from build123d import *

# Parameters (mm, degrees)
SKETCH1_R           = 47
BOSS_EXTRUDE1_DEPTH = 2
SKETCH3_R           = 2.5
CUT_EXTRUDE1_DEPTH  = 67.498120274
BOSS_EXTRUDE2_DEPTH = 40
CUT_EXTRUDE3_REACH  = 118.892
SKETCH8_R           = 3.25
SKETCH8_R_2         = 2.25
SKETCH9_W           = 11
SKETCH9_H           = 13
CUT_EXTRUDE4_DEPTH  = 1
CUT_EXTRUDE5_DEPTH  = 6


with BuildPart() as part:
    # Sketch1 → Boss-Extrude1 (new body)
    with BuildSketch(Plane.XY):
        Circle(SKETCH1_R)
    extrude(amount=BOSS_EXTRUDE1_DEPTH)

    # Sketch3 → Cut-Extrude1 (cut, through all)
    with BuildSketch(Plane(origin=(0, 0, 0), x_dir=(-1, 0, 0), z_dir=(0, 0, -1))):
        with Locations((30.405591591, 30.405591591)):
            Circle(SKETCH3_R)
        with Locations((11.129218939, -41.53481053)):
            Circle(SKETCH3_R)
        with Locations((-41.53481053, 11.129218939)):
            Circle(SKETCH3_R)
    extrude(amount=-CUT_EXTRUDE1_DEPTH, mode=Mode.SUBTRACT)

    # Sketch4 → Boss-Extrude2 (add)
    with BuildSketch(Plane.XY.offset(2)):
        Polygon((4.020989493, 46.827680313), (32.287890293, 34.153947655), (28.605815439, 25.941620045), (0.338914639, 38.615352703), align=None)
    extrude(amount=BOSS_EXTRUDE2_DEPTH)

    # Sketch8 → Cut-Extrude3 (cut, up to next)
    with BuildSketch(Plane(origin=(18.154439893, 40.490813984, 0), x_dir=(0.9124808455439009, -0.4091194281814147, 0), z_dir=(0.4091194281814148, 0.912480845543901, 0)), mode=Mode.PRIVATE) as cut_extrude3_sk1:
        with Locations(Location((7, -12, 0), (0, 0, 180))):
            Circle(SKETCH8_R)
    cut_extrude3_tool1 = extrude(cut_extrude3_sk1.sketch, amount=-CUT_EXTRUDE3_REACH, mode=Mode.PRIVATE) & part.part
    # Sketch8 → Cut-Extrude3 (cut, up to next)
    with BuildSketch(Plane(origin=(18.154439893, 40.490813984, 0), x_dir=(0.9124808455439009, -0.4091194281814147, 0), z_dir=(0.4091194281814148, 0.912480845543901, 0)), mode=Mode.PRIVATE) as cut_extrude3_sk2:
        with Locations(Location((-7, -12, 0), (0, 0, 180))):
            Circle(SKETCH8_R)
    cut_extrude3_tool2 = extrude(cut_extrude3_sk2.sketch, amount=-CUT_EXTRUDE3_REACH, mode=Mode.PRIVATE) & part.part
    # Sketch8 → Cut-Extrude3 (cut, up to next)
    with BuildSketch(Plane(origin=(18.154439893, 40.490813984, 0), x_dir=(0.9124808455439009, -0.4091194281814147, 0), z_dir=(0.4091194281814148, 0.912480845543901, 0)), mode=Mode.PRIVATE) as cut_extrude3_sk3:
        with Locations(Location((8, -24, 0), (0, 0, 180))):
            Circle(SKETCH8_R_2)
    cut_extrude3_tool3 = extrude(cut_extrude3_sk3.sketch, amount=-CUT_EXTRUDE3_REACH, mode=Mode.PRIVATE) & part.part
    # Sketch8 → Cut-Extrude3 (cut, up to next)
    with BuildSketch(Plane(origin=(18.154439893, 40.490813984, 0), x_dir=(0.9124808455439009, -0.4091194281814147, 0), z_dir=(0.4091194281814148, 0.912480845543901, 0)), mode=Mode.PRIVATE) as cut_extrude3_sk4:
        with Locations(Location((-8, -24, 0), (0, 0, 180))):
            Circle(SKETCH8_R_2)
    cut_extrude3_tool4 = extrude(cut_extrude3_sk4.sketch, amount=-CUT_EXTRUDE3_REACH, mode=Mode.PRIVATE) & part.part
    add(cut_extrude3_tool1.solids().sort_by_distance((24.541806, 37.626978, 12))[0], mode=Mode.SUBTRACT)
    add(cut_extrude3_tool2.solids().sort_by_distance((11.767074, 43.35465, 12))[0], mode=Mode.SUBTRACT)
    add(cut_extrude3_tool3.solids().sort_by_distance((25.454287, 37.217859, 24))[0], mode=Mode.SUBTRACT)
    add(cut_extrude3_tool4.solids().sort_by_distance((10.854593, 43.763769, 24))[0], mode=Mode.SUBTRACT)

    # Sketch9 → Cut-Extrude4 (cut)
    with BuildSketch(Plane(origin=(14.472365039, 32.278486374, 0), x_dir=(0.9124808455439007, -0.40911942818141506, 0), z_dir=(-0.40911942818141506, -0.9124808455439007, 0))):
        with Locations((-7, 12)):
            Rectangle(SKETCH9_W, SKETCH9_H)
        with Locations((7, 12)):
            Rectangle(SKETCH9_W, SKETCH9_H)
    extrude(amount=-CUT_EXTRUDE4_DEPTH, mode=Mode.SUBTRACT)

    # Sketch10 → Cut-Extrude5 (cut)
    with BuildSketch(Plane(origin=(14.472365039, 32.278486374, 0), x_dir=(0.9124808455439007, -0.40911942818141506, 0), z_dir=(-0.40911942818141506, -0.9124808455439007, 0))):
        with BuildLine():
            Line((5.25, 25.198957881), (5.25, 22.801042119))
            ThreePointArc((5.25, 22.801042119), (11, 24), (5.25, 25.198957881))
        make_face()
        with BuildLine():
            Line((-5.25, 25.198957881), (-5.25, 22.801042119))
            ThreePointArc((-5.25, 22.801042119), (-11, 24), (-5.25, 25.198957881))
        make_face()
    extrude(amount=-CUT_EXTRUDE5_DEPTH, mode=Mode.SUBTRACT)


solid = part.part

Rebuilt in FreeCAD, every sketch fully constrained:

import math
import FreeCAD as App
import Part
import Sketcher
Q = App.Units.Quantity

doc = App.newDocument("Part")
body = doc.addObject("PartDesign::Body", "Body")

sketch1 = body.newObject("Sketcher::SketchObject", "Sketch")
sketch1.AttachmentSupport = (doc.getObject("XY_Plane"), [""])
sketch1.MapMode = "FlatFace"
sketch1.addGeometry(Part.Circle(App.Vector(0, 0, 0), App.Vector(0, 0, 1), 47), False)
sketch1.addConstraint(Sketcher.Constraint("Coincident", 0, 3, -1, 1))
sketch1.addConstraint(Sketcher.Constraint("Diameter", 0, Q("94 mm")))
pad1 = body.newObject("PartDesign::Pad", "Pad")
pad1.Profile = sketch1
pad1.Length = 2

sketch2 = body.newObject("Sketcher::SketchObject", "Sketch001")
sketch2.AttachmentSupport = (doc.getObject("XY_Plane"), [""])
sketch2.MapMode = "FlatFace"
sketch2.addGeometry(Part.Circle(App.Vector(-30.4, 30.4, 0), App.Vector(0, 0, 1), 2.5), False)
sketch2.addGeometry(Part.Circle(App.Vector(-11.1, -41.5, 0), App.Vector(0, 0, 1), 2.5), False)
sketch2.addGeometry(Part.Circle(App.Vector(41.5, 11.1, 0), App.Vector(0, 0, 1), 2.5), False)
sketch2.addConstraint(Sketcher.Constraint("Equal", 0, 1))
sketch2.addConstraint(Sketcher.Constraint("Equal", 1, 2))
sketch2.addConstraint(Sketcher.Constraint("Diameter", 0, Q("5 mm")))
sketch2.addConstraint(Sketcher.Constraint("DistanceX", 0, 3, -1, 1, Q("30.405592 mm")))
sketch2.addConstraint(Sketcher.Constraint("DistanceY", -1, 1, 0, 3, Q("30.405592 mm")))
sketch2.addConstraint(Sketcher.Constraint("DistanceX", 1, 3, -1, 1, Q("11.129219 mm")))
sketch2.addConstraint(Sketcher.Constraint("DistanceY", 1, 3, -1, 1, Q("41.534811 mm")))
sketch2.addConstraint(Sketcher.Constraint("DistanceX", -1, 1, 2, 3, Q("41.534811 mm")))
sketch2.addConstraint(Sketcher.Constraint("DistanceY", -1, 1, 2, 3, Q("11.129219 mm")))
pocket1 = body.newObject("PartDesign::Pocket", "Pocket")
pocket1.Profile = sketch2
pocket1.Type = "ThroughAll"
pocket1.Reversed = True

sketch3 = body.newObject("Sketcher::SketchObject", "Sketch002")
sketch3.AttachmentSupport = (doc.getObject("XY_Plane"), [""])
sketch3.MapMode = "FlatFace"
sketch3.AttachmentOffset = App.Placement(App.Vector(0, 0, 2), App.Rotation())
sketch3.addGeometry(Part.LineSegment(App.Vector(32, 34, 0), App.Vector(4, 47, 0)), False)
sketch3.addGeometry(Part.LineSegment(App.Vector(4, 47, 0), App.Vector(0, 39, 0)), False)
sketch3.addGeometry(Part.LineSegment(App.Vector(0, 39, 0), App.Vector(29, 26, 0)), False)
sketch3.addGeometry(Part.LineSegment(App.Vector(29, 26, 0), App.Vector(32, 34, 0)), False)
sketch3.addConstraint(Sketcher.Constraint("Coincident", 0, 2, 1, 1))
sketch3.addConstraint(Sketcher.Constraint("Coincident", 1, 2, 2, 1))
sketch3.addConstraint(Sketcher.Constraint("Coincident", 2, 2, 3, 1))
sketch3.addConstraint(Sketcher.Constraint("Coincident", 3, 2, 0, 1))
sketch3.addConstraint(Sketcher.Constraint("Perpendicular", 0, 1))
sketch3.addConstraint(Sketcher.Constraint("Perpendicular", 1, 2))
sketch3.addConstraint(Sketcher.Constraint("Perpendicular", 2, 3))
sketch3.addConstraint(Sketcher.Constraint("Distance", 1, Q("9 mm")))
sketch3.addConstraint(Sketcher.Constraint("DistanceX", 1, 2, 2, 2, Q("28.266901 mm")))
sketch3.addConstraint(Sketcher.Constraint("DistanceX", -1, 1, 0, 2, Q("4.020989 mm")))
sketch3.addConstraint(Sketcher.Constraint("DistanceY", -1, 1, 0, 2, Q("46.82768 mm")))
sketch3.addConstraint(Sketcher.Constraint("DistanceY", -1, 1, 2, 2, Q("25.94162 mm")))
pad2 = body.newObject("PartDesign::Pad", "Pad001")
pad2.Profile = sketch3
pad2.Length = 40

sketch4 = body.newObject("Sketcher::SketchObject", "Sketch003")
sketch4.Placement = App.Placement(App.Vector(18.15444, 40.490814, 0), App.Rotation(App.Vector(0.912480846, -0.409119428, 0), App.Vector(0, 0, -1.000000001), App.Vector(0.409119428, 0.912480846, 0), "ZXY"))
sketch4.addGeometry(Part.Circle(App.Vector(7, -12, 0), App.Vector(0, 0, 1), 3.2), False)
sketch4.addConstraint(Sketcher.Constraint("Diameter", 0, Q("6.5 mm")))
sketch4.addConstraint(Sketcher.Constraint("DistanceX", -1, 1, 0, 3, Q("7 mm")))
sketch4.addConstraint(Sketcher.Constraint("DistanceY", 0, 3, -1, 1, Q("12 mm")))
pocket2 = body.newObject("PartDesign::Pocket", "Pocket001")
pocket2.Profile = sketch4
pocket2.Type = "UpToFirst"

sketch5 = body.newObject("Sketcher::SketchObject", "Sketch004")
sketch5.Placement = App.Placement(App.Vector(18.15444, 40.490814, 0), App.Rotation(App.Vector(0.912480846, -0.409119428, 0), App.Vector(0, 0, -1.000000001), App.Vector(0.409119428, 0.912480846, 0), "ZXY"))
sketch5.addGeometry(Part.Circle(App.Vector(-7, -12, 0), App.Vector(0, 0, 1), 3.2), False)
sketch5.addConstraint(Sketcher.Constraint("Diameter", 0, Q("6.5 mm")))
sketch5.addConstraint(Sketcher.Constraint("DistanceX", 0, 3, -1, 1, Q("7 mm")))
sketch5.addConstraint(Sketcher.Constraint("DistanceY", 0, 3, -1, 1, Q("12 mm")))
pocket3 = body.newObject("PartDesign::Pocket", "Pocket002")
pocket3.Profile = sketch5
pocket3.Type = "UpToFirst"

sketch6 = body.newObject("Sketcher::SketchObject", "Sketch005")
sketch6.Placement = App.Placement(App.Vector(18.15444, 40.490814, 0), App.Rotation(App.Vector(0.912480846, -0.409119428, 0), App.Vector(0, 0, -1.000000001), App.Vector(0.409119428, 0.912480846, 0), "ZXY"))
sketch6.addGeometry(Part.Circle(App.Vector(8, -24, 0), App.Vector(0, 0, 1), 2.2), False)
sketch6.addConstraint(Sketcher.Constraint("Diameter", 0, Q("4.5 mm")))
sketch6.addConstraint(Sketcher.Constraint("DistanceX", -1, 1, 0, 3, Q("8 mm")))
sketch6.addConstraint(Sketcher.Constraint("DistanceY", 0, 3, -1, 1, Q("24 mm")))
pocket4 = body.newObject("PartDesign::Pocket", "Pocket003")
pocket4.Profile = sketch6
pocket4.Type = "UpToFirst"

sketch7 = body.newObject("Sketcher::SketchObject", "Sketch006")
sketch7.Placement = App.Placement(App.Vector(18.15444, 40.490814, 0), App.Rotation(App.Vector(0.912480846, -0.409119428, 0), App.Vector(0, 0, -1.000000001), App.Vector(0.409119428, 0.912480846, 0), "ZXY"))
sketch7.addGeometry(Part.Circle(App.Vector(-8, -24, 0), App.Vector(0, 0, 1), 2.2), False)
sketch7.addConstraint(Sketcher.Constraint("Diameter", 0, Q("4.5 mm")))
sketch7.addConstraint(Sketcher.Constraint("DistanceX", 0, 3, -1, 1, Q("8 mm")))
sketch7.addConstraint(Sketcher.Constraint("DistanceY", 0, 3, -1, 1, Q("24 mm")))
pocket5 = body.newObject("PartDesign::Pocket", "Pocket004")
pocket5.Profile = sketch7
pocket5.Type = "UpToFirst"

sketch8 = body.newObject("Sketcher::SketchObject", "Sketch007")
sketch8.Placement = App.Placement(App.Vector(14.472365, 32.278486, 0), App.Rotation(App.Vector(0.912480846, -0.409119428, 0), App.Vector(0, 0, 1.000000001), App.Vector(-0.409119428, -0.912480846, 0), "ZXY"))
sketch8.addGeometry(Part.LineSegment(App.Vector(-13, 19, 0), App.Vector(-13, 6, 0)), False)
sketch8.addGeometry(Part.LineSegment(App.Vector(-13, 6, 0), App.Vector(-2, 6, 0)), False)
sketch8.addGeometry(Part.LineSegment(App.Vector(-2, 6, 0), App.Vector(-2, 19, 0)), False)
sketch8.addGeometry(Part.LineSegment(App.Vector(-2, 19, 0), App.Vector(-13, 19, 0)), False)
sketch8.addGeometry(Part.LineSegment(App.Vector(2, 19, 0), App.Vector(2, 6, 0)), False)
sketch8.addGeometry(Part.LineSegment(App.Vector(2, 6, 0), App.Vector(13, 6, 0)), False)
sketch8.addGeometry(Part.LineSegment(App.Vector(13, 6, 0), App.Vector(13, 19, 0)), False)
sketch8.addGeometry(Part.LineSegment(App.Vector(13, 19, 0), App.Vector(2, 19, 0)), False)
sketch8.addConstraint(Sketcher.Constraint("Coincident", 0, 2, 1, 1))
sketch8.addConstraint(Sketcher.Constraint("Coincident", 1, 2, 2, 1))
sketch8.addConstraint(Sketcher.Constraint("Coincident", 2, 2, 3, 1))
sketch8.addConstraint(Sketcher.Constraint("Coincident", 3, 2, 0, 1))
sketch8.addConstraint(Sketcher.Constraint("Coincident", 4, 2, 5, 1))
sketch8.addConstraint(Sketcher.Constraint("Coincident", 5, 2, 6, 1))
sketch8.addConstraint(Sketcher.Constraint("Coincident", 6, 2, 7, 1))
sketch8.addConstraint(Sketcher.Constraint("Coincident", 7, 2, 4, 1))
sketch8.addConstraint(Sketcher.Constraint("Vertical", 0))
sketch8.addConstraint(Sketcher.Constraint("Horizontal", 1))
sketch8.addConstraint(Sketcher.Constraint("Vertical", 2))
sketch8.addConstraint(Sketcher.Constraint("Horizontal", 3))
sketch8.addConstraint(Sketcher.Constraint("Vertical", 4))
sketch8.addConstraint(Sketcher.Constraint("Horizontal", 5))
sketch8.addConstraint(Sketcher.Constraint("Vertical", 6))
sketch8.addConstraint(Sketcher.Constraint("Horizontal", 7))
sketch8.addConstraint(Sketcher.Constraint("Symmetric", 1, 2, 4, 2, -2))
sketch8.addConstraint(Sketcher.Constraint("Symmetric", 3, 2, 6, 2, -2))
sketch8.addConstraint(Sketcher.Constraint("DistanceX", 1, 1, 1, 2, Q("11 mm")))
sketch8.addConstraint(Sketcher.Constraint("DistanceY", 0, 2, 0, 1, Q("13 mm")))
sketch8.addConstraint(Sketcher.Constraint("DistanceX", 1, 2, 4, 2, Q("3 mm")))
sketch8.addConstraint(Sketcher.Constraint("DistanceY", -1, 1, 0, 2, Q("5.5 mm")))
pocket6 = body.newObject("PartDesign::Pocket", "Pocket005")
pocket6.Profile = sketch8
pocket6.Length = 1

sketch9 = body.newObject("Sketcher::SketchObject", "Sketch008")
sketch9.Placement = App.Placement(App.Vector(14.472365, 32.278486, 0), App.Rotation(App.Vector(0.912480846, -0.409119428, 0), App.Vector(0, 0, 1.000000001), App.Vector(-0.409119428, -0.912480846, 0), "ZXY"))
sketch9.addGeometry(Part.LineSegment(App.Vector(5.3, 25.2, 0), App.Vector(5.3, 22.8, 0)), False)
sketch9.addGeometry(Part.ArcOfCircle(Part.Circle(App.Vector(8, 24, 0), App.Vector(0, 0, 1), 3), math.radians(-156), math.radians(156)), False)
sketch9.addGeometry(Part.LineSegment(App.Vector(-5.3, 22.8, 0), App.Vector(-5.3, 25.2, 0)), False)
sketch9.addGeometry(Part.ArcOfCircle(Part.Circle(App.Vector(-8, 24, 0), App.Vector(0, 0, 1), 3), math.radians(24), math.radians(336)), False)
sketch9.addConstraint(Sketcher.Constraint("Coincident", 0, 1, 1, 2))
sketch9.addConstraint(Sketcher.Constraint("Coincident", 1, 1, 0, 2))
sketch9.addConstraint(Sketcher.Constraint("Coincident", 2, 1, 3, 2))
sketch9.addConstraint(Sketcher.Constraint("Coincident", 3, 1, 2, 2))
sketch9.addConstraint(Sketcher.Constraint("Vertical", 0))
sketch9.addConstraint(Sketcher.Constraint("Vertical", 2))
sketch9.addConstraint(Sketcher.Constraint("Equal", 1, 3))
sketch9.addConstraint(Sketcher.Constraint("Symmetric", 1, 3, 3, 3, -2))
sketch9.addConstraint(Sketcher.Constraint("Horizontal", 1, 1, 2, 1))
sketch9.addConstraint(Sketcher.Constraint("Radius", 1, Q("3 mm")))
sketch9.addConstraint(Sketcher.Constraint("DistanceX", -1, 1, 1, 3, Q("8 mm")))
sketch9.addConstraint(Sketcher.Constraint("DistanceY", -1, 1, 1, 3, Q("24 mm")))
sketch9.addConstraint(Sketcher.Constraint("DistanceX", 2, 1, 1, 1, Q("10.5 mm")))
pocket7 = body.newObject("PartDesign::Pocket", "Pocket006")
pocket7.Profile = sketch9
pocket7.Length = 6

doc.recompute()
